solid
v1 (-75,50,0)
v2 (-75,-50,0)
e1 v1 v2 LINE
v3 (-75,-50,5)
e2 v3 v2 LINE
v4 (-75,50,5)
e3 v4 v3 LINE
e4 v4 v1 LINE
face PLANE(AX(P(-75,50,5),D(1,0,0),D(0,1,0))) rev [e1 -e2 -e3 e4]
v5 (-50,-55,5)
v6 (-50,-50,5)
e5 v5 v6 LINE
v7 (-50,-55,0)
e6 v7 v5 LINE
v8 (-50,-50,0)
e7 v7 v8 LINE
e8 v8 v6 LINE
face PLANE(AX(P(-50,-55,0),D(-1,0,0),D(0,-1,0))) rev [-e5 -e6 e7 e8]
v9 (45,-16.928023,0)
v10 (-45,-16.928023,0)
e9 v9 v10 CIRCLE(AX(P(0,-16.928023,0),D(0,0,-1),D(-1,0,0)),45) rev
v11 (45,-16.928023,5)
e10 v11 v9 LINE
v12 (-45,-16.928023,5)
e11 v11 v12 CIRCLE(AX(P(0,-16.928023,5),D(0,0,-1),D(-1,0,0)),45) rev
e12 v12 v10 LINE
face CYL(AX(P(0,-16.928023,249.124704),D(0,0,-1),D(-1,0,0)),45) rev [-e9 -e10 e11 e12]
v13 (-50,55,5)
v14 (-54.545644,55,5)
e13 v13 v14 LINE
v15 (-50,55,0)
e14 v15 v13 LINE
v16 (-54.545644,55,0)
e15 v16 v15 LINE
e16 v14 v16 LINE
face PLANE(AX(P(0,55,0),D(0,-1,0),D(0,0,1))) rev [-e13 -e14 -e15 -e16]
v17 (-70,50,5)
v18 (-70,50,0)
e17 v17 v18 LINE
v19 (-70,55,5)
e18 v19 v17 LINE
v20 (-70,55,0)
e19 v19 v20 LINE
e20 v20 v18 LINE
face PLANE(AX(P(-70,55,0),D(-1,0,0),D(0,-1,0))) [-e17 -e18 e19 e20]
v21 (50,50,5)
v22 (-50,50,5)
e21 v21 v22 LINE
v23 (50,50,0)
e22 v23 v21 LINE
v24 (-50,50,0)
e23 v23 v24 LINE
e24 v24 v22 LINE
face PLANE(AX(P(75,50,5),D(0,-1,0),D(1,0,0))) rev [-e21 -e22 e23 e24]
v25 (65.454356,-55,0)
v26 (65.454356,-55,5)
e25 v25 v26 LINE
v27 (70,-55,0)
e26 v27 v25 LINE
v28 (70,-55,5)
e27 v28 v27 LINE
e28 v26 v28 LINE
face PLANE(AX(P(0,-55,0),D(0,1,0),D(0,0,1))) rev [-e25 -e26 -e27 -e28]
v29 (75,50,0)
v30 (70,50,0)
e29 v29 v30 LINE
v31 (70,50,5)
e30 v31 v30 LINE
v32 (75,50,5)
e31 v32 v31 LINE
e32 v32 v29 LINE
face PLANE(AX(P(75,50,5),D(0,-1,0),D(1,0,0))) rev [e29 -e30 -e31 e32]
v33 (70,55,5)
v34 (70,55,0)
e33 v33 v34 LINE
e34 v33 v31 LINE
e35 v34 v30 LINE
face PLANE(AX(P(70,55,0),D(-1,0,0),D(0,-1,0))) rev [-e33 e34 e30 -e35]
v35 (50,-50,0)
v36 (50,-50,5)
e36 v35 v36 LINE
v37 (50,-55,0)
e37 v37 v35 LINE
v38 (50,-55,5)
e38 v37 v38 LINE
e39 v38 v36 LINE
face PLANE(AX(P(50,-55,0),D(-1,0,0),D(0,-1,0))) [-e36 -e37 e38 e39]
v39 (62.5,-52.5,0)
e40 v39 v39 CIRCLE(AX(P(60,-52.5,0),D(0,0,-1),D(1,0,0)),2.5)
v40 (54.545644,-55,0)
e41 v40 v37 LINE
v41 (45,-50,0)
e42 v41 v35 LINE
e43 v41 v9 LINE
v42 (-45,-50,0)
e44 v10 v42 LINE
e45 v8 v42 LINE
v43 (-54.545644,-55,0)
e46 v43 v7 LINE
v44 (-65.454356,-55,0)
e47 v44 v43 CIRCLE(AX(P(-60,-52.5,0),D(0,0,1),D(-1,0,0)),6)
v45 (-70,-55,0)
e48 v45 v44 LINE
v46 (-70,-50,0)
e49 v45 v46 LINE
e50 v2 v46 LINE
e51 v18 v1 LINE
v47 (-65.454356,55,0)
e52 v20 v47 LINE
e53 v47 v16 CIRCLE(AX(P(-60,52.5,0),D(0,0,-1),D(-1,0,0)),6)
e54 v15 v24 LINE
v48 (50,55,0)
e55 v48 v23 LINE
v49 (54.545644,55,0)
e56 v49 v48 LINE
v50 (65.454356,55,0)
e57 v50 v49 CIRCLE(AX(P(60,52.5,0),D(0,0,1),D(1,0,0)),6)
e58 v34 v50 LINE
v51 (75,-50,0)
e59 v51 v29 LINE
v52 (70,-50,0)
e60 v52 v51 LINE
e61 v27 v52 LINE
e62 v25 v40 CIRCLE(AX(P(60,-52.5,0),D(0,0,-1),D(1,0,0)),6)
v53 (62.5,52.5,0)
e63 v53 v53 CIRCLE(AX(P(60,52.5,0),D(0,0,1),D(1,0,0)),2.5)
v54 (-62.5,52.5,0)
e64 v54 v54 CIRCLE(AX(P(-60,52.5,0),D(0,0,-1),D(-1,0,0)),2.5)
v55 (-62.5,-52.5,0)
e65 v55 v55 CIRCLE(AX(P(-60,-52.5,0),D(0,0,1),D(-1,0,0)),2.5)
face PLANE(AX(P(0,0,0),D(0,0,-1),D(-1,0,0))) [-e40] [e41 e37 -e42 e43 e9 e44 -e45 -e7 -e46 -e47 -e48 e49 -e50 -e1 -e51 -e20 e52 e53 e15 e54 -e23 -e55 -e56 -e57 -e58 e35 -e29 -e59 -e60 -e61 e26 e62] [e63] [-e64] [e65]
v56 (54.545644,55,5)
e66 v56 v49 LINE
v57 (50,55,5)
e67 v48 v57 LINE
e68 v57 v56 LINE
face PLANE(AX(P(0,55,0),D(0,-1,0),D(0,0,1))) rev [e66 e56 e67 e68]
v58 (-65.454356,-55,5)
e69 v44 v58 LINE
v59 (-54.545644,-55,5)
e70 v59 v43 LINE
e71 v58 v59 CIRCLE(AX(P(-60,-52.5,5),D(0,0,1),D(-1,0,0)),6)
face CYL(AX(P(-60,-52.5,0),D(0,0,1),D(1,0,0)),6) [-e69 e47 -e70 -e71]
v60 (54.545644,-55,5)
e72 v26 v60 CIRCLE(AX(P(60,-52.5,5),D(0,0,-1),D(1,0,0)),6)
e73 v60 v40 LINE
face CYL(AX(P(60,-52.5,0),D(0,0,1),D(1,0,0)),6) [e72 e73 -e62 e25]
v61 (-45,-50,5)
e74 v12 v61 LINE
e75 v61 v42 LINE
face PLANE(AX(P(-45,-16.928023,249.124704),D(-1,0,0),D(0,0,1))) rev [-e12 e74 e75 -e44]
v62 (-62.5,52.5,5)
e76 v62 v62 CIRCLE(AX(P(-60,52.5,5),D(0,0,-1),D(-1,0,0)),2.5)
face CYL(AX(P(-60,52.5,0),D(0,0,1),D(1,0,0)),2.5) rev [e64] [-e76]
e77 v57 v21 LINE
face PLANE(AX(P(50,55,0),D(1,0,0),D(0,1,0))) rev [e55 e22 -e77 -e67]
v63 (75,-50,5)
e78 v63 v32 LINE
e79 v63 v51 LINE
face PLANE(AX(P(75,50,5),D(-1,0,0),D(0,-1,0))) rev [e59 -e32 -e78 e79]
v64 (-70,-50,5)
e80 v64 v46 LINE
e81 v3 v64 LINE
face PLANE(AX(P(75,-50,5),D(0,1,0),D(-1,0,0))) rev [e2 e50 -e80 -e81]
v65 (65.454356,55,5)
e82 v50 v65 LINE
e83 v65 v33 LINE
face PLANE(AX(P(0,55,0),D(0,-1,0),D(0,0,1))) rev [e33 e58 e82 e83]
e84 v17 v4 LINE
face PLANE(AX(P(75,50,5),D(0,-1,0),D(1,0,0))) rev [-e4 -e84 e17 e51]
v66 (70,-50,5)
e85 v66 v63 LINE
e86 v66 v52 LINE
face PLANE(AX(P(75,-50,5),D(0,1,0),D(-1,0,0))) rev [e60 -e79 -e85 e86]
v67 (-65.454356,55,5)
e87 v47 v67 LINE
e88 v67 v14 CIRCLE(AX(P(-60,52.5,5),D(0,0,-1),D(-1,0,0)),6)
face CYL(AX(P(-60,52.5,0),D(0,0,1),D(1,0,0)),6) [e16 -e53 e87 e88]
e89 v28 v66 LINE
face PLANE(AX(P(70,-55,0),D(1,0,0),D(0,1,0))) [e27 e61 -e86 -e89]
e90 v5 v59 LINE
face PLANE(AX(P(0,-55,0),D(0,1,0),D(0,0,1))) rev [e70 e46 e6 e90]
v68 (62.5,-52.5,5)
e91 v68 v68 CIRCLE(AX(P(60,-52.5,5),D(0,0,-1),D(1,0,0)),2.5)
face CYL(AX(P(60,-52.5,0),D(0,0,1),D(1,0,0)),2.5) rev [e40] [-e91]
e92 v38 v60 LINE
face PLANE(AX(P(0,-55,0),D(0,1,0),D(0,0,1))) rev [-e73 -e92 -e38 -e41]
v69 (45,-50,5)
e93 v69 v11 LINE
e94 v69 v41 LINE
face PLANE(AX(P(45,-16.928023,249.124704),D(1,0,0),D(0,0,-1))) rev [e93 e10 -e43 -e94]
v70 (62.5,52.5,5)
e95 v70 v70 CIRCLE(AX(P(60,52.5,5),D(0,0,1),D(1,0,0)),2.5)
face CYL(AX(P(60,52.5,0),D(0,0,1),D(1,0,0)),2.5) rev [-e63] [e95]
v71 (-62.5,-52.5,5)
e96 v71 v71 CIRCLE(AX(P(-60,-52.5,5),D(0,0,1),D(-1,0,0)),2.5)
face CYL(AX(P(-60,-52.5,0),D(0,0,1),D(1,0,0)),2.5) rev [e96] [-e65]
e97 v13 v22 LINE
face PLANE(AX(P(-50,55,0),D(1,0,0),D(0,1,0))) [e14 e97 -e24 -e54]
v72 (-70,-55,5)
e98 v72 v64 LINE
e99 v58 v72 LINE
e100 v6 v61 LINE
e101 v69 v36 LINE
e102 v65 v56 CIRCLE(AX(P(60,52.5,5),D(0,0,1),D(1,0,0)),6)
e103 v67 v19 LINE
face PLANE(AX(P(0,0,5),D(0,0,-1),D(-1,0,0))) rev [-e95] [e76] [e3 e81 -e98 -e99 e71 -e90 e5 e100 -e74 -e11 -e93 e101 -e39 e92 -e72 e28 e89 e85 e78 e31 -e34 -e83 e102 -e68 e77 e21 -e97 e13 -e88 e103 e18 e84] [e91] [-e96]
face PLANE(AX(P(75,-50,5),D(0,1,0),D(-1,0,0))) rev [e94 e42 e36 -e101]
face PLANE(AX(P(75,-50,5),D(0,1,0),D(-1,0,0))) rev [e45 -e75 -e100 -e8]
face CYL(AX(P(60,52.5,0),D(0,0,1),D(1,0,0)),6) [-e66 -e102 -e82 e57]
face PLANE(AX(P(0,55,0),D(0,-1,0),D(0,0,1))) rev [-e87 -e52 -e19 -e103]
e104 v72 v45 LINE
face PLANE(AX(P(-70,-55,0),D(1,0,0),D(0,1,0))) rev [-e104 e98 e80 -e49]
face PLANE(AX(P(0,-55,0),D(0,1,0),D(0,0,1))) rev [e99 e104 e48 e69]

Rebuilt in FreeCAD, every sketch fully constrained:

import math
import FreeCAD as App
import Part
import Sketcher

V = App.Vector
Q = App.Units.Quantity


def add_polygon(sketch, points):
    """Adds a closed chain of lines whose ends are joined by coincident constraints."""
    first, n = sketch.GeometryCount, len(points)
    for a, b in zip(points, points[1:] + points[:1]):
        sketch.addGeometry(Part.LineSegment(App.Vector(*a, 0), App.Vector(*b, 0)), False)
    for i in range(n):
        sketch.addConstraint(Sketcher.Constraint("Coincident", first + i, 2, first + (i + 1) % n, 1))

doc = App.newDocument("Part")
body = doc.addObject("PartDesign::Body", "Body")

sketch1 = body.newObject("Sketcher::SketchObject", "Sketch")
sketch1.AttachmentSupport = (doc.getObject("XY_Plane"), [""])
sketch1.MapMode = "FlatFace"
add_polygon(sketch1, [(-75, 50), (-75, -50), (75, -50), (75, 50)])
sketch1.addConstraint([
    Sketcher.Constraint("Vertical", 0),
    Sketcher.Constraint("Horizontal", 1),
    Sketcher.Constraint("Vertical", 2),
    Sketcher.Constraint("Horizontal", 3),
    Sketcher.Constraint("Symmetric", 0, 2, 2, 2, -1, 1),
    Sketcher.Constraint("DistanceX", 1, 1, 1, 2, Q("150 mm")),
    Sketcher.Constraint("DistanceY", 0, 2, 0, 1, Q("100 mm")),
])
pad1 = body.newObject("PartDesign::Pad", "Pad")
pad1.Profile = sketch1
pad1.Length = 5

sketch2 = body.newObject("Sketcher::SketchObject", "Sketch001")
sketch2.AttachmentSupport = (doc.getObject("XZ_Plane"), [""])
sketch2.MapMode = "FlatFace"
sketch2.AttachmentOffset = App.Placement(V(0, 0, 50), App.Rotation())
add_polygon(sketch2, [(-70, 5), (-70, 0), (-50, 0), (-50, 5)])
sketch2.addConstraint([
    Sketcher.Constraint("Vertical", 0),
    Sketcher.Constraint("Horizontal", 1),
    Sketcher.Constraint("Vertical", 2),
    Sketcher.Constraint("Horizontal", 3),
    Sketcher.Constraint("PointOnObject", 0, 2, -1),
    Sketcher.Constraint("DistanceX", 1, 1, 1, 2, Q("20 mm")),
    Sketcher.Constraint("DistanceY", 0, 2, 0, 1, Q("5 mm")),
    Sketcher.Constraint("DistanceX", 0, 2, -1, 1, Q("70 mm")),
])
pad2 = body.newObject("PartDesign::Pad", "Pad001")
pad2.Profile = sketch2
pad2.Length = 5
doc.recompute()

mirrored = body.newObject("PartDesign::Mirrored", "Mirrored")
mirrored.Originals = [pad2]
mirrored.MirrorPlane = (doc.getObject("YZ_Plane"), [""])
body.Tip = mirrored
doc.recompute()

mirrored2 = body.newObject("PartDesign::Mirrored", "Mirrored001")
mirrored2.Originals = [pad2]
mirrored2.MirrorPlane = (doc.getObject("XZ_Plane"), [""])
body.Tip = mirrored2

sketch3 = body.newObject("Sketcher::SketchObject", "Sketch002")
sketch3.AttachmentSupport = (doc.getObject("XZ_Plane"), [""])
sketch3.MapMode = "FlatFace"
sketch3.AttachmentOffset = App.Placement(V(0, 0, -50), App.Rotation())
add_polygon(sketch3, [(70, 5), (70, 0), (50, 0), (50, 5)])
sketch3.addConstraint([
    Sketcher.Constraint("Vertical", 0),
    Sketcher.Constraint("Horizontal", 1),
    Sketcher.Constraint("Vertical", 2),
    Sketcher.Constraint("Horizontal", 3),
    Sketcher.Constraint("PointOnObject", 0, 2, -1),
    Sketcher.Constraint("DistanceX", 1, 2, 1, 1, Q("20 mm")),
    Sketcher.Constraint("DistanceY", 0, 2, 0, 1, Q("5 mm")),
    Sketcher.Constraint("DistanceX", -1, 1, 0, 2, Q("70 mm")),
])
pad3 = body.newObject("PartDesign::Pad", "Pad002")
pad3.Profile = sketch3
pad3.Length = 5
pad3.Reversed = True

sketch4 = body.newObject("Sketcher::SketchObject", "Sketch003")
sketch4.AttachmentSupport = (doc.getObject("XY_Plane"), [""])
sketch4.MapMode = "FlatFace"
sketch4.AttachmentOffset = App.Placement(V(0, 0, 5), App.Rotation())
sketch4.addGeometry(Part.Circle(V(60, 52, 0), V(0, 0, 1), 6), False)
sketch4.addConstraint([
    Sketcher.Constraint("Diameter", 0, Q("12 mm")),
    Sketcher.Constraint("DistanceX", -1, 1, 0, 3, Q("60 mm")),
    Sketcher.Constraint("DistanceY", -1, 1, 0, 3, Q("52.5 mm")),
])
pad4 = body.newObject("PartDesign::Pad", "Pad003")
pad4.Profile = sketch4
pad4.Length = 5
pad4.Reversed = True

sketch5 = body.newObject("Sketcher::SketchObject", "Sketch004")
sketch5.AttachmentSupport = (doc.getObject("XY_Plane"), [""])
sketch5.MapMode = "FlatFace"
sketch5.AttachmentOffset = App.Placement(V(0, 0, 5), App.Rotation())
sketch5.addGeometry(Part.Circle(V(60, 52.5, 0), V(0, 0, 1), 2.5), False)
sketch5.addConstraint([
    Sketcher.Constraint("Diameter", 0, Q("5 mm")),
    Sketcher.Constraint("DistanceX", -1, 1, 0, 3, Q("60 mm")),
    Sketcher.Constraint("DistanceY", -1, 1, 0, 3, Q("52.5 mm")),
])
pocket1 = body.newObject("PartDesign::Pocket", "Pocket")
pocket1.Profile = sketch5
pocket1.Length = 5
doc.recompute()

mirrored3 = body.newObject("PartDesign::Mirrored", "Mirrored002")
mirrored3.Originals = [pad4, pocket1]
mirrored3.MirrorPlane = (doc.getObject("YZ_Plane"), [""])
body.Tip = mirrored3
doc.recompute()

mirrored4 = body.newObject("PartDesign::Mirrored", "Mirrored003")
mirrored4.Originals = [pad4, pocket1]
mirrored4.MirrorPlane = (doc.getObject("XZ_Plane"), [""])
body.Tip = mirrored4

sketch6 = body.newObject("Sketcher::SketchObject", "Sketch005")
sketch6.AttachmentSupport = (doc.getObject("XY_Plane"), [""])
sketch6.MapMode = "FlatFace"
sketch6.AttachmentOffset = App.Placement(V(0, 0, 5), App.Rotation())
sketch6.addGeometry(Part.Circle(V(-60, -52, 0), V(0, 0, 1), 6), False)
sketch6.addConstraint([
    Sketcher.Constraint("Diameter", 0, Q("12 mm")),
    Sketcher.Constraint("DistanceX", 0, 3, -1, 1, Q("60 mm")),
    Sketcher.Constraint("DistanceY", 0, 3, -1, 1, Q("52.5 mm")),
])
pad5 = body.newObject("PartDesign::Pad", "Pad004")
pad5.Profile = sketch6
pad5.Length = 5
pad5.Reversed = True

sketch7 = body.newObject("Sketcher::SketchObject", "Sketch006")
sketch7.AttachmentSupport = (doc.getObject("XY_Plane"), [""])
sketch7.MapMode = "FlatFace"
sketch7.AttachmentOffset = App.Placement(V(0, 0, 5), App.Rotation())
sketch7.addGeometry(Part.Circle(V(-60, -52.5, 0), V(0, 0, 1), 2.5), False)
sketch7.addConstraint([
    Sketcher.Constraint("Diameter", 0, Q("5 mm")),
    Sketcher.Constraint("DistanceX", 0, 3, -1, 1, Q("60 mm")),
    Sketcher.Constraint("DistanceY", 0, 3, -1, 1, Q("52.5 mm")),
])
pocket2 = body.newObject("PartDesign::Pocket", "Pocket001")
pocket2.Profile = sketch7
pocket2.Length = 5

sketch8 = body.newObject("Sketcher::SketchObject", "Sketch007")
sketch8.AttachmentSupport = (doc.getObject("XY_Plane"), [""])
sketch8.MapMode = "FlatFace"
sketch8.AttachmentOffset = App.Placement(V(0, 0, 5), App.Rotation())
sketch8.addGeometry([
    Part.ArcOfCircle(Part.Circle(V(0, -17, 0), V(0, 0, 1), 45), math.radians(0), math.radians(180)),
    Part.LineSegment(V(-45, -17, 0), V(-45, -1051, 0)),
    Part.LineSegment(V(-45, -1051, 0), V(45, -1051, 0)),
    Part.LineSegment(V(45, -1051, 0), V(45, -17, 0)),
], False)
sketch8.addConstraint([
    Sketcher.Constraint("Tangent", 0, 2, 1, 1),
    Sketcher.Constraint("Coincident", 1, 2, 2, 1),
    Sketcher.Constraint("Coincident", 2, 2, 3, 1),
    Sketcher.Constraint("Tangent", 3, 2, 0, 1),
    Sketcher.Constraint("Vertical", 1),
    Sketcher.Constraint("Horizontal", 2),
    Sketcher.Constraint("Vertical", 3),
    Sketcher.Constraint("PointOnObject", 0, 3, -2),
    Sketcher.Constraint("Radius", 0, Q("45 mm")),
    Sketcher.Constraint("DistanceY", 1, 2, 1, 1, Q("1033.742364 mm")),
    Sketcher.Constraint("DistanceY", 0, 3, -1, 1, Q("16.928023 mm")),
])
pocket3 = body.newObject("PartDesign::Pocket", "Pocket002")
pocket3.Profile = sketch8
pocket3.Type = "ThroughAll"
pocket3.Midplane = True

doc.recompute()
